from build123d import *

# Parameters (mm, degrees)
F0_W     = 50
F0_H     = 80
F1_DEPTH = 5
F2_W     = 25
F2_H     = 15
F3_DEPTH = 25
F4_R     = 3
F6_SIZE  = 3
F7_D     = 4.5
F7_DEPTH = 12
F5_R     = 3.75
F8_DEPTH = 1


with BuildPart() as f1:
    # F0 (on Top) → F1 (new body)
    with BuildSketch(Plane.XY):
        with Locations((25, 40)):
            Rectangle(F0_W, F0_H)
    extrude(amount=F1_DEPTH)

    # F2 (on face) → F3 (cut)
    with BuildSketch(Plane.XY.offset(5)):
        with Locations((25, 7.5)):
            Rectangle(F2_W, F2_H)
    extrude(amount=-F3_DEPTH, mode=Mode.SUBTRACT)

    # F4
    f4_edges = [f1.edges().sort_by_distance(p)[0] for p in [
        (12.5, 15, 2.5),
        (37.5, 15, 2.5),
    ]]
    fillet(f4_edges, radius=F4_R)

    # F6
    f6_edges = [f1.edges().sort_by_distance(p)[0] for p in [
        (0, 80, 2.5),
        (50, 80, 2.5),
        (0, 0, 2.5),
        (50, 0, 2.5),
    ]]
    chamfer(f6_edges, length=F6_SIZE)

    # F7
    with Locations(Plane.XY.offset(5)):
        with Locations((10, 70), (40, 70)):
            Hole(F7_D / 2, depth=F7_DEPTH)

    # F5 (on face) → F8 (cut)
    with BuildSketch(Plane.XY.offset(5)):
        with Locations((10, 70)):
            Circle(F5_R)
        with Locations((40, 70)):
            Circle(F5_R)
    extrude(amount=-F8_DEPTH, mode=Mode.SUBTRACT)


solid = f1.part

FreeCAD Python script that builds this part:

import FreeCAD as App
import Part
import Sketcher
Q = App.Units.Quantity


def edges_at(feature, points):
    """Names of the edges that pass closest to the given points."""
    edges = feature.Shape.Edges
    near = lambda p: min(range(len(edges)), key=lambda i: edges[i].distToShape(Part.Vertex(*p))[0])
    return sorted({f"Edge{near(p) + 1}" for p in points})


def add_polygon(sketch, points):
    """Adds a closed chain of lines whose ends are joined by coincident constraints."""
    first, n = sketch.GeometryCount, len(points)
    for a, b in zip(points, points[1:] + points[:1]):
        sketch.addGeometry(Part.LineSegment(App.Vector(*a, 0), App.Vector(*b, 0)), False)
    for i in range(n):
        sketch.addConstraint(Sketcher.Constraint("Coincident", first + i, 2, first + (i + 1) % n, 1))

doc = App.newDocument("Part")
params = doc.addObject("Spreadsheet::Sheet", "Params")
for row, (alias, value) in enumerate([
    ("sketch1_width", "50 mm"),
    ("sketch1_height", "80 mm"),
    ("pad1_length", "5 mm"),
    ("sketch2_width", "25 mm"),
    ("sketch2_height", "15 mm"),
    ("pocket1_length", "25 mm"),
    ("fillet_radius", "3 mm"),
    ("chamfer_size", "3 mm"),
    ("sketch3_diameter", "4.5 mm"),
    ("hole_diameter", "4.5 mm"),
    ("hole_depth", "12 mm"),
    ("sketch4_diameter", "7.5 mm"),
    ("pocket2_length", "1 mm"),
], start=1):
    params.set(f"A{row}", alias)
    params.set(f"B{row}", "=" + value)
    params.setAlias(f"B{row}", alias)

body = doc.addObject("PartDesign::Body", "Body")

sketch1 = body.newObject("Sketcher::SketchObject", "Sketch")
sketch1.AttachmentSupport = (doc.getObject("XY_Plane"), [""])
sketch1.MapMode = "FlatFace"
add_polygon(sketch1, [(0, 80), (0, 0), (50, 0), (50, 80)])
sketch1.addConstraint(Sketcher.Constraint("Vertical", 0))
sketch1.addConstraint(Sketcher.Constraint("Horizontal", 1))
sketch1.addConstraint(Sketcher.Constraint("Vertical", 2))
sketch1.addConstraint(Sketcher.Constraint("Horizontal", 3))
sketch1.addConstraint(Sketcher.Constraint("Coincident", 0, 2, -1, 1))
sketch1.addConstraint(Sketcher.Constraint("DistanceX", 1, 1, 1, 2, Q("50 mm")))
sketch1.addConstraint(Sketcher.Constraint("DistanceY", 0, 2, 0, 1, Q("80 mm")))
sketch1.setExpression("Constraints[9]", "Params.sketch1_width")
sketch1.setExpression("Constraints[10]", "Params.sketch1_height")
pad1 = body.newObject("PartDesign::Pad", "Pad")
pad1.Profile = sketch1
pad1.setExpression("Length", "Params.pad1_length")

sketch2 = body.newObject("Sketcher::SketchObject", "Sketch001")
sketch2.AttachmentSupport = (doc.getObject("XY_Plane"), [""])
sketch2.MapMode = "FlatFace"
sketch2.AttachmentOffset = App.Placement(App.Vector(0, 0, 5), App.Rotation())
add_polygon(sketch2, [(12, 15), (12, 0), (38, 0), (38, 15)])
sketch2.addConstraint(Sketcher.Constraint("Vertical", 0))
sketch2.addConstraint(Sketcher.Constraint("Horizontal", 1))
sketch2.addConstraint(Sketcher.Constraint("Vertical", 2))
sketch2.addConstraint(Sketcher.Constraint("Horizontal", 3))
sketch2.addConstraint(Sketcher.Constraint("PointOnObject", 0, 2, -1))
sketch2.addConstraint(Sketcher.Constraint("DistanceX", 1, 1, 1, 2, Q("25 mm")))
sketch2.addConstraint(Sketcher.Constraint("DistanceY", 0, 2, 0, 1, Q("15 mm")))
sketch2.addConstraint(Sketcher.Constraint("DistanceX", -1, 1, 0, 2, Q("12.5 mm")))
sketch2.setExpression("Constraints[9]", "Params.sketch2_width")
sketch2.setExpression("Constraints[10]", "Params.sketch2_height")
pocket1 = body.newObject("PartDesign::Pocket", "Pocket")
pocket1.Profile = sketch2
pocket1.setExpression("Length", "Params.pocket1_length")
doc.recompute()

fillet = body.newObject("PartDesign::Fillet", "Fillet")
fillet.Base = (pocket1, edges_at(pocket1, [(12.5, 15, 2.5), (37.5, 15, 2.5)]))
fillet.setExpression("Radius", "Params.fillet_radius")
doc.recompute()

chamfer = body.newObject("PartDesign::Chamfer", "Chamfer")
chamfer.Base = (fillet, edges_at(fillet, [
    (0, 80, 2.5),
    (50, 80, 2.5),
    (0, 0, 2.5),
    (50, 0, 2.5),
]))
chamfer.setExpression("Size", "Params.chamfer_size")

sketch3 = body.newObject("Sketcher::SketchObject", "Sketch002")
sketch3.AttachmentSupport = (doc.getObject("XY_Plane"), [""])
sketch3.MapMode = "FlatFace"
sketch3.AttachmentOffset = App.Placement(App.Vector(0, 0, 5), App.Rotation())
sketch3.addGeometry(Part.Circle(App.Vector(10, 70, 0), App.Vector(0, 0, 1), 2.2), False)
sketch3.addGeometry(Part.Circle(App.Vector(40, 70, 0), App.Vector(0, 0, 1), 2.2), False)
sketch3.addConstraint(Sketcher.Constraint("Equal", 0, 1))
sketch3.addConstraint(Sketcher.Constraint("Horizontal", 0, 3, 1, 3))
sketch3.addConstraint(Sketcher.Constraint("Diameter", 0, Q("4.5 mm")))
sketch3.addConstraint(Sketcher.Constraint("DistanceX", -1, 1, 0, 3, Q("10 mm")))
sketch3.addConstraint(Sketcher.Constraint("DistanceY", -1, 1, 0, 3, Q("70 mm")))
sketch3.addConstraint(Sketcher.Constraint("DistanceX", -1, 1, 1, 3, Q("40 mm")))
sketch3.setExpression("Constraints[2]", "Params.sketch3_diameter")
doc.recompute()
hole = body.newObject("PartDesign::Hole", "Hole")
hole.Profile = sketch3
hole.ThreadType = "None"
hole.setExpression("Diameter", "Params.hole_diameter")
hole.DepthType = "Dimension"
hole.setExpression("Depth", "Params.hole_depth")
hole.DrillPoint = "Flat"

sketch4 = body.newObject("Sketcher::SketchObject", "Sketch003")
sketch4.AttachmentSupport = (doc.getObject("XY_Plane"), [""])
sketch4.MapMode = "FlatFace"
sketch4.AttachmentOffset = App.Placement(App.Vector(0, 0, 5), App.Rotation())
sketch4.addGeometry(Part.Circle(App.Vector(10, 70, 0), App.Vector(0, 0, 1), 3.8), False)
sketch4.addGeometry(Part.Circle(App.Vector(40, 70, 0), App.Vector(0, 0, 1), 3.8), False)
sketch4.addConstraint(Sketcher.Constraint("Equal", 0, 1))
sketch4.addConstraint(Sketcher.Constraint("Horizontal", 0, 3, 1, 3))
sketch4.addConstraint(Sketcher.Constraint("Diameter", 0, Q("7.5 mm")))
sketch4.addConstraint(Sketcher.Constraint("DistanceX", -1, 1, 0, 3, Q("10 mm")))
sketch4.addConstraint(Sketcher.Constraint("DistanceY", -1, 1, 0, 3, Q("70 mm")))
sketch4.addConstraint(Sketcher.Constraint("DistanceX", -1, 1, 1, 3, Q("40 mm")))
sketch4.setExpression("Constraints[2]", "Params.sketch4_diameter")
pocket2 = body.newObject("PartDesign::Pocket", "Pocket001")
pocket2.Profile = sketch4
pocket2.setExpression("Length", "Params.pocket2_length")

doc.recompute()
